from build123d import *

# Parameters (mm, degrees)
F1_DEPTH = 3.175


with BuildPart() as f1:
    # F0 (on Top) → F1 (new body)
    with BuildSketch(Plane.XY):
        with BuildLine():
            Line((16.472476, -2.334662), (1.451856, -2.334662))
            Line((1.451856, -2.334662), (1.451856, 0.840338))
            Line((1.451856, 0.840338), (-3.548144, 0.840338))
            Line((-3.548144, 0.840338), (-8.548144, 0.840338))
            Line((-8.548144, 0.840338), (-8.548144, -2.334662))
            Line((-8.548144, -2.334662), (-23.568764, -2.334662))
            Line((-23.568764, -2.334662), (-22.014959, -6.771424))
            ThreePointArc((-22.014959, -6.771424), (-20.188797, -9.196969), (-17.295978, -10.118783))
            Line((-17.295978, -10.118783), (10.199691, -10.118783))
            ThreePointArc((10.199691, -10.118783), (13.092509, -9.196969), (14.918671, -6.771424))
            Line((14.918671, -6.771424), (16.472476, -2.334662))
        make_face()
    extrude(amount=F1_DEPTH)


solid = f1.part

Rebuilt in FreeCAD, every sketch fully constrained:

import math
import FreeCAD as App
import Part
import Sketcher

doc = App.newDocument("Part")
body = doc.addObject("PartDesign::Body", "Body")

# Sketch on XY plane
sketch1 = doc.addObject("Sketcher::SketchObject", "Sketch")
body.addObject(sketch1)
sketch1.AttachmentSupport = (doc.XY_Plane, [""])
sketch1.MapMode = "FlatFace"
sketch1.addGeometry([
    Part.LineSegment(App.Vector(16.5, -2.3, 0), App.Vector(1.5, -2.3, 0)),  # 0
    Part.LineSegment(App.Vector(1.5, -2.3, 0), App.Vector(1.5, 0.8, 0)),  # 1
    Part.LineSegment(App.Vector(1.5, 0.8, 0), App.Vector(-8.5, 0.8, 0)),  # 2
    Part.LineSegment(App.Vector(-8.5, 0.8, 0), App.Vector(-8.5, -2.3, 0)),  # 3
    Part.LineSegment(App.Vector(-8.5, -2.3, 0), App.Vector(-23.6, -2.3, 0)),  # 4
    Part.LineSegment(App.Vector(-23.6, -2.3, 0), App.Vector(-22, -6.8, 0)),  # 5
    Part.ArcOfCircle(Part.Circle(App.Vector(-17.3, -5.1, 0), App.Vector(0, 0, 1), 5), math.radians(-161), math.radians(-90)),  # 6
    Part.LineSegment(App.Vector(-17.3, -10.1, 0), App.Vector(10.2, -10.1, 0)),  # 7
    Part.ArcOfCircle(Part.Circle(App.Vector(10.2, -5.1, 0), App.Vector(0, 0, 1), 5), math.radians(-90), math.radians(-19)),  # 8
    Part.LineSegment(App.Vector(14.9, -6.8, 0), App.Vector(16.5, -2.3, 0)),  # 9
], False)
sketch1.addConstraint([
    Sketcher.Constraint("Coincident", 0, 2, 1, 1),
    Sketcher.Constraint("Coincident", 1, 2, 2, 1),
    Sketcher.Constraint("Coincident", 2, 2, 3, 1),
    Sketcher.Constraint("Coincident", 3, 2, 4, 1),
    Sketcher.Constraint("Coincident", 4, 2, 5, 1),
    Sketcher.Constraint("Tangent", 5, 2, 6, 1),
    Sketcher.Constraint("Tangent", 6, 2, 7, 1),
    Sketcher.Constraint("Tangent", 7, 2, 8, 1),
    Sketcher.Constraint("Tangent", 8, 2, 9, 1),
    Sketcher.Constraint("Coincident", 9, 2, 0, 1),
    Sketcher.Constraint("Horizontal", 0),
    Sketcher.Constraint("Vertical", 1),
    Sketcher.Constraint("Horizontal", 2),
    Sketcher.Constraint("Vertical", 3),
    Sketcher.Constraint("Horizontal", 4),
    Sketcher.Constraint("Horizontal", 7),
    Sketcher.Constraint("Equal", 6, 8),
    Sketcher.Constraint("Horizontal", 0, 2, 3, 2),
    Sketcher.Constraint("Horizontal", 5, 2, 8, 2),
    Sketcher.Constraint("Equal", 0, 4),
    Sketcher.Constraint("Radius", 6, 5.0),
    Sketcher.Constraint("DistanceX", 2, 2, 2, 1, 10.0),
    Sketcher.Constraint("DistanceY", 1, 1, 1, 2, 3.175),
    Sketcher.Constraint("DistanceX", 0, 2, 0, 1, 15.02062),
    Sketcher.Constraint("DistanceX", 7, 1, 7, 2, 27.495669),
    Sketcher.Constraint("DistanceX", 6, 3, -1, 1, 17.295979),
    Sketcher.Constraint("DistanceY", 0, 2, -1, 1, 2.334662),
    Sketcher.Constraint("DistanceX", 5, 2, -1, 1, 22.014959),
])
pad1 = doc.addObject("PartDesign::Pad", "Pad")
body.addObject(pad1)
pad1.Profile = sketch1
pad1.Length = 3.175

doc.recompute()
